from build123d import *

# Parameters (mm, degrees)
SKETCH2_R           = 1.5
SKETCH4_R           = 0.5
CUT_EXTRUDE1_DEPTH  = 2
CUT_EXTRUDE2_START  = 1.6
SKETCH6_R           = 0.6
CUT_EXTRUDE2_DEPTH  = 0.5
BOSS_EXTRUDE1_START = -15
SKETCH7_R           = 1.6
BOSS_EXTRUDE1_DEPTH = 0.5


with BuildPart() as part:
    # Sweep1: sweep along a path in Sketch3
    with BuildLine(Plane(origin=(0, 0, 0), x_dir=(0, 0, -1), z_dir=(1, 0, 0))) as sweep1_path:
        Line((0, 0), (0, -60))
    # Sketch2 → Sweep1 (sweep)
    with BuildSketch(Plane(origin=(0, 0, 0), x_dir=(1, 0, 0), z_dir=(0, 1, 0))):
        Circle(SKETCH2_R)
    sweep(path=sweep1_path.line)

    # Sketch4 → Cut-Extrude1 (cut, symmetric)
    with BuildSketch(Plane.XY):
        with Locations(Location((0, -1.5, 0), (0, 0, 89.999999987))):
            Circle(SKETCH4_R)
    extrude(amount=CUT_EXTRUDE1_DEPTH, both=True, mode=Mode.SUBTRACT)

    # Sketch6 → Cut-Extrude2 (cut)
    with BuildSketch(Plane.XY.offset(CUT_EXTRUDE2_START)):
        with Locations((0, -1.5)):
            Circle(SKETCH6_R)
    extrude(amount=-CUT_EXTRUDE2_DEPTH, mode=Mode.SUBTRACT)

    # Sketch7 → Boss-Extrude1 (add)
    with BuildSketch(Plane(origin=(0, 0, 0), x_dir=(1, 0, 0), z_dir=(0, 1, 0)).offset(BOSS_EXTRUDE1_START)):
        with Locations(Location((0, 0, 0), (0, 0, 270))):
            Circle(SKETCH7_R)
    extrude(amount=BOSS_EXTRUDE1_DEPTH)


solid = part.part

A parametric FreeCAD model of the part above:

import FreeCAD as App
import Part
import Sketcher
Q = App.Units.Quantity

doc = App.newDocument("Part")
body = doc.addObject("PartDesign::Body", "Body")

# Sketch on XZ plane
sketch1 = doc.addObject("Sketcher::SketchObject", "Sketch")
body.addObject(sketch1)
sketch1.AttachmentSupport = (doc.XZ_Plane, [""])
sketch1.MapMode = "FlatFace"
sketch1.addGeometry(Part.Circle(App.Vector(0, 0, 0), App.Vector(0, 0, 1), 1.5), False)
sketch1.addConstraint(Sketcher.Constraint("Coincident", 0, 3, -1, 1))
sketch1.addConstraint(Sketcher.Constraint("Diameter", 0, Q("3 mm")))

# Sketch on XY plane
sketch2 = doc.addObject("Sketcher::SketchObject", "Sketch001")
body.addObject(sketch2)
sketch2.AttachmentSupport = (doc.XY_Plane, [""])
sketch2.MapMode = "FlatFace"
sketch2.addGeometry(Part.LineSegment(App.Vector(0, 0, 0), App.Vector(0, -60, 0)), False)
sketch2.addConstraint(Sketcher.Constraint("Vertical", 0))
sketch2.addConstraint(Sketcher.Constraint("Coincident", 0, 1, -1, 1))
sketch2.addConstraint(Sketcher.Constraint("DistanceY", 0, 2, 0, 1, Q("60 mm")))
doc.recompute()

additivepipe = doc.addObject("PartDesign::AdditivePipe", "AdditivePipe")
body.addObject(additivepipe)
additivepipe.Profile = sketch1
additivepipe.Spine = (sketch2, ["Edge1"])

# Sketch on XY plane
sketch3 = doc.addObject("Sketcher::SketchObject", "Sketch002")
body.addObject(sketch3)
sketch3.AttachmentSupport = (doc.XY_Plane, [""])
sketch3.MapMode = "FlatFace"
sketch3.addGeometry(Part.Circle(App.Vector(0, -1.5, 0), App.Vector(0, 0, 1), 0.5), False)
sketch3.addConstraint(Sketcher.Constraint("PointOnObject", 0, 3, -2))
sketch3.addConstraint(Sketcher.Constraint("Diameter", 0, Q("1 mm")))
sketch3.addConstraint(Sketcher.Constraint("DistanceY", 0, 3, -1, 1, Q("1.5 mm")))
pocket1 = doc.addObject("PartDesign::Pocket", "Pocket")
body.addObject(pocket1)
pocket1.Profile = sketch3
pocket1.Length = 4
pocket1.Midplane = True

# Sketch on XY plane
sketch4 = doc.addObject("Sketcher::SketchObject", "Sketch003")
body.addObject(sketch4)
sketch4.AttachmentSupport = (doc.XY_Plane, [""])
sketch4.MapMode = "FlatFace"
sketch4.AttachmentOffset = App.Placement(App.Vector(0, 0, 1.6), App.Rotation())
sketch4.addGeometry(Part.Circle(App.Vector(0, -1.5, 0), App.Vector(0, 0, 1), 0.6), False)
sketch4.addConstraint(Sketcher.Constraint("PointOnObject", 0, 3, -2))
sketch4.addConstraint(Sketcher.Constraint("Diameter", 0, Q("1.2 mm")))
sketch4.addConstraint(Sketcher.Constraint("DistanceY", 0, 3, -1, 1, Q("1.5 mm")))
pocket2 = doc.addObject("PartDesign::Pocket", "Pocket001")
body.addObject(pocket2)
pocket2.Profile = sketch4
pocket2.Length = 0.5

# Sketch on XZ plane
sketch5 = doc.addObject("Sketcher::SketchObject", "Sketch004")
body.addObject(sketch5)
sketch5.AttachmentSupport = (doc.XZ_Plane, [""])
sketch5.MapMode = "FlatFace"
sketch5.AttachmentOffset = App.Placement(App.Vector(0, 0, 15), App.Rotation())
sketch5.addGeometry(Part.Circle(App.Vector(0, 0, 0), App.Vector(0, 0, 1), 1.6), False)
sketch5.addConstraint(Sketcher.Constraint("Coincident", 0, 3, -1, 1))
sketch5.addConstraint(Sketcher.Constraint("Diameter", 0, Q("3.2 mm")))
pad1 = doc.addObject("PartDesign::Pad", "Pad")
body.addObject(pad1)
pad1.Profile = sketch5
pad1.Length = 0.5
pad1.Reversed = True

doc.recompute()
